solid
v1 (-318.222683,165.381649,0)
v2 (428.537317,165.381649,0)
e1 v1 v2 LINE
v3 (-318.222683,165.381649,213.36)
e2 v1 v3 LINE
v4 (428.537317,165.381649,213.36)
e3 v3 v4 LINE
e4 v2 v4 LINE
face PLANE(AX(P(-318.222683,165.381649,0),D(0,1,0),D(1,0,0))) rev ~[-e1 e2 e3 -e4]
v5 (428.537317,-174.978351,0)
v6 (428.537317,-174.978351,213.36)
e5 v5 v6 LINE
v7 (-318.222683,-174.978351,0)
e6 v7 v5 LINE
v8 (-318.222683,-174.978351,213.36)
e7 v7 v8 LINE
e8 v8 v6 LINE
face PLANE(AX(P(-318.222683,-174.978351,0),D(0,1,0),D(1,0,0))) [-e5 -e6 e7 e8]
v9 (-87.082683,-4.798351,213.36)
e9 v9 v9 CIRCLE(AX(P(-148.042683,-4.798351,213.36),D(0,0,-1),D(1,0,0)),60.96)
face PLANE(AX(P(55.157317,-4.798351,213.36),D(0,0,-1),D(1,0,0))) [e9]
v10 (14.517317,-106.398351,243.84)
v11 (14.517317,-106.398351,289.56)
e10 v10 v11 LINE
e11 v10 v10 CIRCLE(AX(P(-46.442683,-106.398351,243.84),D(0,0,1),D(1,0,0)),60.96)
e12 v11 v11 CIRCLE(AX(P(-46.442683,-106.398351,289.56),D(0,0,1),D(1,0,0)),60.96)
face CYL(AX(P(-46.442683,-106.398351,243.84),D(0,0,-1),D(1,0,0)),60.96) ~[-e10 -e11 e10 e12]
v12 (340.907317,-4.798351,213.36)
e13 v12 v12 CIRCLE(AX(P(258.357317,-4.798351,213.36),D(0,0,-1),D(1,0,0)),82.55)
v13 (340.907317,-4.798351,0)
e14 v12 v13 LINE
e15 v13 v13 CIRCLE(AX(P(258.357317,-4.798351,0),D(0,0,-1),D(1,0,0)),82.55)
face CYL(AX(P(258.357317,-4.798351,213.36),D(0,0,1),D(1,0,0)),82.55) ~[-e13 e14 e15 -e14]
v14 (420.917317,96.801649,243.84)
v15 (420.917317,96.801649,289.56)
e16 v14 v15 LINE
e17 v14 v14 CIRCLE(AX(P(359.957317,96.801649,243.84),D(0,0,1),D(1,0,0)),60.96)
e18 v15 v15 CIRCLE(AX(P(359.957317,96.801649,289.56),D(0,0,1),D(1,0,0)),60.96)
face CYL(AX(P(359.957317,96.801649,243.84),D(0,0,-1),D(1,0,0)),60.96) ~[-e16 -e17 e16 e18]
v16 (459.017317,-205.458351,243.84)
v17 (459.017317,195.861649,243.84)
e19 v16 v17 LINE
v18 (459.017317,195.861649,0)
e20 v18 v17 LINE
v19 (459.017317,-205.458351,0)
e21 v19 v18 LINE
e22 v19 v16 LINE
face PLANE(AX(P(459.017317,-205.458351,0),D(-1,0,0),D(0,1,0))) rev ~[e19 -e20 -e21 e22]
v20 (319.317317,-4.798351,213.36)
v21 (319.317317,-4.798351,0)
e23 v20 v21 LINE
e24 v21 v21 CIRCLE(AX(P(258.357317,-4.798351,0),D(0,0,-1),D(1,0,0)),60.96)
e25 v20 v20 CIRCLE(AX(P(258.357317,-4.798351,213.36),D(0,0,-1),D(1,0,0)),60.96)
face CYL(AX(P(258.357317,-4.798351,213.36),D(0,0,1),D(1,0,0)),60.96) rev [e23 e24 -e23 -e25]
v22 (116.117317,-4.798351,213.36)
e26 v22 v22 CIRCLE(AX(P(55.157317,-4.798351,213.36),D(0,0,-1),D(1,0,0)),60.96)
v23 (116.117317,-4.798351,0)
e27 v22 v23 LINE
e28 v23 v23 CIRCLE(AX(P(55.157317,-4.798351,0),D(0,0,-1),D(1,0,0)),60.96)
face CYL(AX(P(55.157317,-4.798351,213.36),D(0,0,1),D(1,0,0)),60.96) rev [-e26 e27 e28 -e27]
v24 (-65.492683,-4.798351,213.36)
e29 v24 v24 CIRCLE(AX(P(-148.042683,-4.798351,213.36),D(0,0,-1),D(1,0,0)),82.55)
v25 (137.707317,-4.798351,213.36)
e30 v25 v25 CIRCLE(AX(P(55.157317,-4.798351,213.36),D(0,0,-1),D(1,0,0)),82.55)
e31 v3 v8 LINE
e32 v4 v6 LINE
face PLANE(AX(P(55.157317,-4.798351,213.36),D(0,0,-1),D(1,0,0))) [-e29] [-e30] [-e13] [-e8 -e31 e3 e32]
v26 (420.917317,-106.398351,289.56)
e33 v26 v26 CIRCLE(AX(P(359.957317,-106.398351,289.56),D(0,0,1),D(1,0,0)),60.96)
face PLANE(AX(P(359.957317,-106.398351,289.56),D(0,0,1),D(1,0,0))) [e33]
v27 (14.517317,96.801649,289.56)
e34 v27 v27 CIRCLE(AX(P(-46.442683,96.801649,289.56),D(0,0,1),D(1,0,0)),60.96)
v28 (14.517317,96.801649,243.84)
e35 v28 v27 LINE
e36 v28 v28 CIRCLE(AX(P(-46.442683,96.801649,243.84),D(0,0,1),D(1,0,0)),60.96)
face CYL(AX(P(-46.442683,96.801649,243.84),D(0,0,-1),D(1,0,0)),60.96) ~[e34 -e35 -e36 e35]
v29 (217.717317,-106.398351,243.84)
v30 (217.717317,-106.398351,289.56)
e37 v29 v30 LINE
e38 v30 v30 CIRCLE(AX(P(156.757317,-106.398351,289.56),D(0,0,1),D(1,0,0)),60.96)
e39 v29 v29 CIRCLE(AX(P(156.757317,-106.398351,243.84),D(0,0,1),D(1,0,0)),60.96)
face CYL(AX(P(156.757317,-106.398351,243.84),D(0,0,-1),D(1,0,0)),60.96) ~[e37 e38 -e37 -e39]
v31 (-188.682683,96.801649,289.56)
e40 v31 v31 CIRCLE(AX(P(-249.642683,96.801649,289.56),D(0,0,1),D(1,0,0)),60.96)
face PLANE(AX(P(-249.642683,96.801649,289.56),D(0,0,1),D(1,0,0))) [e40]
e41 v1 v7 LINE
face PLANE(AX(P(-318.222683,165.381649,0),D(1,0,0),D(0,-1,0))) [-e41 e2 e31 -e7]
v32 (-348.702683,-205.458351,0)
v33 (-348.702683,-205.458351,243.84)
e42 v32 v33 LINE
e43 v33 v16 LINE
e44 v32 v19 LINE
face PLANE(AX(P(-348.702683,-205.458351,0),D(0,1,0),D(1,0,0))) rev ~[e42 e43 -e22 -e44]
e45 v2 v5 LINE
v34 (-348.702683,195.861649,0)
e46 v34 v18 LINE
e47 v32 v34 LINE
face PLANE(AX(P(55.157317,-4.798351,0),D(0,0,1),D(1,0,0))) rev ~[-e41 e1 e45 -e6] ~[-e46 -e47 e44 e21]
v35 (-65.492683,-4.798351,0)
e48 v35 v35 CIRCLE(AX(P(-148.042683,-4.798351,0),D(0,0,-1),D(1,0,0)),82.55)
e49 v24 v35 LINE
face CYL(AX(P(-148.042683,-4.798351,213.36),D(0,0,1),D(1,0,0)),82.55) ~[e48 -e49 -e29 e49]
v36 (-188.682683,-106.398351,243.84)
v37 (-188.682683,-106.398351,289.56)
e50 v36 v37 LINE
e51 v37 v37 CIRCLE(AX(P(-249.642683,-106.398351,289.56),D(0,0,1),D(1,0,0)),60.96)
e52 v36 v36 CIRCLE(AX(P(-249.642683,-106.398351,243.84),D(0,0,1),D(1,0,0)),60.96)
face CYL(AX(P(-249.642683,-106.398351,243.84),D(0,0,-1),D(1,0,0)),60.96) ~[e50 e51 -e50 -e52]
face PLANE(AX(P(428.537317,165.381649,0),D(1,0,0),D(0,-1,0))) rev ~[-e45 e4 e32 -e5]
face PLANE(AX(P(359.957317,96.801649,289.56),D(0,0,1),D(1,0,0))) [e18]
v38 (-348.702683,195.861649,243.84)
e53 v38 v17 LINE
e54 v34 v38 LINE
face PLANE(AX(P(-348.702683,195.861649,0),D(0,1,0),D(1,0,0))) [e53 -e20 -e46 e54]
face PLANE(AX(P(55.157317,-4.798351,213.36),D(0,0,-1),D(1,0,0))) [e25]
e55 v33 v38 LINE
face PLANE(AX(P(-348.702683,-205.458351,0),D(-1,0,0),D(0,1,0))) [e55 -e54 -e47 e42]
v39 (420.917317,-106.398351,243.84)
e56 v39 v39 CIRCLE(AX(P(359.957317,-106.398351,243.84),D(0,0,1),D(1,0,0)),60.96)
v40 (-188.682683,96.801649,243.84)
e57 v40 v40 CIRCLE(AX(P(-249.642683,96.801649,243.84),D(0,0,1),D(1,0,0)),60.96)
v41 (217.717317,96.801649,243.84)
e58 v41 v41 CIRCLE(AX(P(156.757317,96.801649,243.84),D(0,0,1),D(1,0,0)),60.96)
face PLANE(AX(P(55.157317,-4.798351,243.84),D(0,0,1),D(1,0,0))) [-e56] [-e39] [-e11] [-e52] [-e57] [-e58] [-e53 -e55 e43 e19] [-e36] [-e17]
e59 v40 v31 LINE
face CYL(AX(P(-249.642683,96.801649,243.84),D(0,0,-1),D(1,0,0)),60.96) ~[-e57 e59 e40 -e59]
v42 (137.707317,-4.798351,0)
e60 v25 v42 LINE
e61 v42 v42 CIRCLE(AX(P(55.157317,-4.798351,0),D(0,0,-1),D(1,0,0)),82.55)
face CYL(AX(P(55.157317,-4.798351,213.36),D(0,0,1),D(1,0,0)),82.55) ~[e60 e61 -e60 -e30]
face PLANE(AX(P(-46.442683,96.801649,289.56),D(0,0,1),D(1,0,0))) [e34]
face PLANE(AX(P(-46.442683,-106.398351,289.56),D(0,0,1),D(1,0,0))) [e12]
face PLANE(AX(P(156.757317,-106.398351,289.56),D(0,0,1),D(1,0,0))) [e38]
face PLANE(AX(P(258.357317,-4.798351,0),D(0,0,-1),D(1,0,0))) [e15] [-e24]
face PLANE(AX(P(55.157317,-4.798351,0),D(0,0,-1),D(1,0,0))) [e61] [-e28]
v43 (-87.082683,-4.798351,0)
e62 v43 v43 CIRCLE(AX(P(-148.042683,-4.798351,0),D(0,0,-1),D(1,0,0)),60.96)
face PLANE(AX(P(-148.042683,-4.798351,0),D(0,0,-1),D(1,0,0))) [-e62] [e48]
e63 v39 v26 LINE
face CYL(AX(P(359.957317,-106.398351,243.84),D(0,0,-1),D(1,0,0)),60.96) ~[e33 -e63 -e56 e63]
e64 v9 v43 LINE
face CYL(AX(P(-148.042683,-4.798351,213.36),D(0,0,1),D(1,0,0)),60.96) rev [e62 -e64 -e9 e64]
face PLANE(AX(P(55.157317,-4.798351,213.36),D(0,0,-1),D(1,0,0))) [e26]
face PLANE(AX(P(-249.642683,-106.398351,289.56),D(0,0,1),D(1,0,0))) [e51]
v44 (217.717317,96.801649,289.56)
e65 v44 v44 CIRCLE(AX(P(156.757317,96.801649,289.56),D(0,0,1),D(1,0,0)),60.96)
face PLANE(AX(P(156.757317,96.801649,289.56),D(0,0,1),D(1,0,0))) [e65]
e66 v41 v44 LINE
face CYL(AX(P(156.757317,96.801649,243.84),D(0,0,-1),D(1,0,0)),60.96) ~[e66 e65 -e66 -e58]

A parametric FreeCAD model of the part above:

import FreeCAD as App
import Part
import Sketcher
from FreeCAD import Vector
Q = App.Units.Quantity


def add_polygon(sketch, points):
    """Adds a closed chain of lines whose ends are joined by coincident constraints."""
    first, n = sketch.GeometryCount, len(points)
    for a, b in zip(points, points[1:] + points[:1]):
        sketch.addGeometry(Part.LineSegment(App.Vector(*a, 0), App.Vector(*b, 0)), False)
    for i in range(n):
        sketch.addConstraint(Sketcher.Constraint("Coincident", first + i, 2, first + (i + 1) % n, 1))

doc = App.newDocument("Part")
body = doc.addObject("PartDesign::Body", "Body")

# Sketch on XY plane
sketch1 = doc.addObject("Sketcher::SketchObject", "Sketch")
body.addObject(sketch1)
sketch1.AttachmentSupport = (doc.XY_Plane, [""])
sketch1.MapMode = "FlatFace"
add_polygon(sketch1, [(-348.702683, 195.861649), (-348.702683, -205.458351), (459.017317, -205.458351), (459.017317, 195.861649)])  # lines 0-3
sketch1.addConstraint([
    Sketcher.Constraint("Vertical", 0),
    Sketcher.Constraint("Horizontal", 1),
    Sketcher.Constraint("Vertical", 2),
    Sketcher.Constraint("Horizontal", 3),
    Sketcher.Constraint("DistanceX", 1, 1, 1, 2, Q("31.8 in")),
    Sketcher.Constraint("DistanceY", 0, 2, 0, 1, Q("15.8 in")),
    Sketcher.Constraint("DistanceY", 0, 2, -1, 1, 205.458351),
    Sketcher.Constraint("DistanceX", 0, 2, -1, 1, 348.702683),
])
pad1 = doc.addObject("PartDesign::Pad", "Pad")
body.addObject(pad1)
pad1.Profile = sketch1
pad1.Length = Q("9.6 in")

# Sketch on XY plane
sketch2 = doc.addObject("Sketcher::SketchObject", "Sketch001")
body.addObject(sketch2)
sketch2.AttachmentSupport = (doc.XY_Plane, [""])
sketch2.MapMode = "FlatFace"
sketch2.AttachmentOffset = App.Placement(Vector(0, 0, 9.6 * 25.4), App.Rotation())
sketch2.addGeometry([
    Part.Circle(Vector(-249.642683, -106.398351, 0), Vector(0, 0, 1), 60.96),  # 0
    Part.Circle(Vector(-249.642683, 96.801649, 0), Vector(0, 0, 1), 60.96),  # 1
    Part.Circle(Vector(-46.442683, -106.398351, 0), Vector(0, 0, 1), 60.96),  # 2
    Part.Circle(Vector(-46.442683, 96.801649, 0), Vector(0, 0, 1), 60.96),  # 3
    Part.Circle(Vector(156.757317, 96.801649, 0), Vector(0, 0, 1), 60.96),  # 4
    Part.Circle(Vector(359.957317, -106.398351, 0), Vector(0, 0, 1), 60.96),  # 5
    Part.Circle(Vector(359.957317, 96.801649, 0), Vector(0, 0, 1), 60.96),  # 6
    Part.Circle(Vector(156.757317, -106.398351, 0), Vector(0, 0, 1), 60.96),  # 7
], False)
sketch2.addConstraint([
    Sketcher.Constraint("Equal", 0, 1),
    Sketcher.Constraint("Equal", 1, 2),
    Sketcher.Constraint("Equal", 2, 3),
    Sketcher.Constraint("Equal", 3, 4),
    Sketcher.Constraint("Equal", 4, 5),
    Sketcher.Constraint("Equal", 5, 6),
    Sketcher.Constraint("Equal", 6, 7),
    Sketcher.Constraint("Horizontal", 0, 3, 2, 3),
    Sketcher.Constraint("Horizontal", 1, 3, 3, 3),
    Sketcher.Constraint("Horizontal", 3, 3, 4, 3),
    Sketcher.Constraint("Horizontal", 2, 3, 5, 3),
    Sketcher.Constraint("Horizontal", 4, 3, 6, 3),
    Sketcher.Constraint("Horizontal", 5, 3, 7, 3),
    Sketcher.Constraint("Vertical", 0, 3, 1, 3),
    Sketcher.Constraint("Vertical", 2, 3, 3, 3),
    Sketcher.Constraint("Vertical", 5, 3, 6, 3),
    Sketcher.Constraint("Vertical", 4, 3, 7, 3),
    Sketcher.Constraint("Diameter", 0, Q("4.8 in")),
    Sketcher.Constraint("DistanceY", 0, 3, 1, 3, Q("8 in")),
    Sketcher.Constraint("DistanceX", 0, 3, 2, 3, Q("8 in")),
    Sketcher.Constraint("DistanceX", 3, 3, 4, 3, Q("8 in")),
    Sketcher.Constraint("DistanceX", 4, 3, 5, 3, Q("8 in")),
    Sketcher.Constraint("DistanceY", 0, 3, -1, 1, 106.398351),
    Sketcher.Constraint("DistanceX", 0, 3, -1, 1, 249.642683),
])
pad2 = doc.addObject("PartDesign::Pad", "Pad001")
body.addObject(pad2)
pad2.Profile = sketch2
pad2.Length = Q("1.8 in")

# Sketch on XY plane
sketch3 = doc.addObject("Sketcher::SketchObject", "Sketch002")
body.addObject(sketch3)
sketch3.AttachmentSupport = (doc.XY_Plane, [""])
sketch3.MapMode = "FlatFace"
add_polygon(sketch3, [(-318.222683, -174.978351), (-318.222683, 165.381649), (428.537317, 165.381649), (428.537317, -174.978351)])  # lines 0-3
sketch3.addConstraint([
    Sketcher.Constraint("Vertical", 0),
    Sketcher.Constraint("Horizontal", 1),
    Sketcher.Constraint("Vertical", 2),
    Sketcher.Constraint("Horizontal", 3),
    Sketcher.Constraint("DistanceX", 1, 1, 1, 2, Q("29.4 in")),
    Sketcher.Constraint("DistanceY", 0, 1, 0, 2, Q("13.4 in")),
    Sketcher.Constraint("DistanceY", -1, 1, 0, 2, 165.381649),
    Sketcher.Constraint("DistanceX", 0, 2, -1, 1, 318.222683),
])
pocket1 = doc.addObject("PartDesign::Pocket", "Pocket")
body.addObject(pocket1)
pocket1.Profile = sketch3
pocket1.Length = Q("8.4 in")
pocket1.Reversed = True

# Sketch on XY plane
sketch4 = doc.addObject("Sketcher::SketchObject", "Sketch003")
body.addObject(sketch4)
sketch4.AttachmentSupport = (doc.XY_Plane, [""])
sketch4.MapMode = "FlatFace"
sketch4.AttachmentOffset = App.Placement(Vector(0, 0, 8.4 * 25.4), App.Rotation())
sketch4.addGeometry([
    Part.Circle(Vector(55.157317, -4.798351, 0), Vector(0, 0, 1), 82.55),  # 0
    Part.Circle(Vector(55.157317, -4.798351, 0), Vector(0, 0, 1), 60.96),  # 1
    Part.Circle(Vector(258.357317, -4.798351, 0), Vector(0, 0, 1), 82.55),  # 2
    Part.Circle(Vector(258.357317, -4.798351, 0), Vector(0, 0, 1), 60.96),  # 3
    Part.Circle(Vector(-148.042683, -4.798351, 0), Vector(0, 0, 1), 82.55),  # 4
    Part.Circle(Vector(-148.042683, -4.798351, 0), Vector(0, 0, 1), 60.96),  # 5
], False)
sketch4.addConstraint([
    Sketcher.Constraint("Coincident", 1, 3, 0, 3),
    Sketcher.Constraint("Coincident", 3, 3, 2, 3),
    Sketcher.Constraint("Coincident", 5, 3, 4, 3),
    Sketcher.Constraint("Equal", 0, 2),
    Sketcher.Constraint("Equal", 1, 3),
    Sketcher.Constraint("Equal", 2, 4),
    Sketcher.Constraint("Equal", 3, 5),
    Sketcher.Constraint("Horizontal", 1, 3, 2, 3),
    Sketcher.Constraint("Horizontal", 3, 3, 4, 3),
    Sketcher.Constraint("Diameter", 0, Q("6.5 in")),
    Sketcher.Constraint("Diameter", 1, Q("4.8 in")),
    Sketcher.Constraint("DistanceX", 0, 3, 2, 3, Q("8 in")),
    Sketcher.Constraint("DistanceX", 4, 3, 0, 3, Q("8 in")),
    Sketcher.Constraint("DistanceY", 0, 3, -1, 1, 4.798351),
    Sketcher.Constraint("DistanceX", -1, 1, 0, 3, 55.157317),
])
pad3 = doc.addObject("PartDesign::Pad", "Pad002")
body.addObject(pad3)
pad3.Profile = sketch4
pad3.Length = Q("8.4 in")
pad3.Reversed = True

doc.recompute()
